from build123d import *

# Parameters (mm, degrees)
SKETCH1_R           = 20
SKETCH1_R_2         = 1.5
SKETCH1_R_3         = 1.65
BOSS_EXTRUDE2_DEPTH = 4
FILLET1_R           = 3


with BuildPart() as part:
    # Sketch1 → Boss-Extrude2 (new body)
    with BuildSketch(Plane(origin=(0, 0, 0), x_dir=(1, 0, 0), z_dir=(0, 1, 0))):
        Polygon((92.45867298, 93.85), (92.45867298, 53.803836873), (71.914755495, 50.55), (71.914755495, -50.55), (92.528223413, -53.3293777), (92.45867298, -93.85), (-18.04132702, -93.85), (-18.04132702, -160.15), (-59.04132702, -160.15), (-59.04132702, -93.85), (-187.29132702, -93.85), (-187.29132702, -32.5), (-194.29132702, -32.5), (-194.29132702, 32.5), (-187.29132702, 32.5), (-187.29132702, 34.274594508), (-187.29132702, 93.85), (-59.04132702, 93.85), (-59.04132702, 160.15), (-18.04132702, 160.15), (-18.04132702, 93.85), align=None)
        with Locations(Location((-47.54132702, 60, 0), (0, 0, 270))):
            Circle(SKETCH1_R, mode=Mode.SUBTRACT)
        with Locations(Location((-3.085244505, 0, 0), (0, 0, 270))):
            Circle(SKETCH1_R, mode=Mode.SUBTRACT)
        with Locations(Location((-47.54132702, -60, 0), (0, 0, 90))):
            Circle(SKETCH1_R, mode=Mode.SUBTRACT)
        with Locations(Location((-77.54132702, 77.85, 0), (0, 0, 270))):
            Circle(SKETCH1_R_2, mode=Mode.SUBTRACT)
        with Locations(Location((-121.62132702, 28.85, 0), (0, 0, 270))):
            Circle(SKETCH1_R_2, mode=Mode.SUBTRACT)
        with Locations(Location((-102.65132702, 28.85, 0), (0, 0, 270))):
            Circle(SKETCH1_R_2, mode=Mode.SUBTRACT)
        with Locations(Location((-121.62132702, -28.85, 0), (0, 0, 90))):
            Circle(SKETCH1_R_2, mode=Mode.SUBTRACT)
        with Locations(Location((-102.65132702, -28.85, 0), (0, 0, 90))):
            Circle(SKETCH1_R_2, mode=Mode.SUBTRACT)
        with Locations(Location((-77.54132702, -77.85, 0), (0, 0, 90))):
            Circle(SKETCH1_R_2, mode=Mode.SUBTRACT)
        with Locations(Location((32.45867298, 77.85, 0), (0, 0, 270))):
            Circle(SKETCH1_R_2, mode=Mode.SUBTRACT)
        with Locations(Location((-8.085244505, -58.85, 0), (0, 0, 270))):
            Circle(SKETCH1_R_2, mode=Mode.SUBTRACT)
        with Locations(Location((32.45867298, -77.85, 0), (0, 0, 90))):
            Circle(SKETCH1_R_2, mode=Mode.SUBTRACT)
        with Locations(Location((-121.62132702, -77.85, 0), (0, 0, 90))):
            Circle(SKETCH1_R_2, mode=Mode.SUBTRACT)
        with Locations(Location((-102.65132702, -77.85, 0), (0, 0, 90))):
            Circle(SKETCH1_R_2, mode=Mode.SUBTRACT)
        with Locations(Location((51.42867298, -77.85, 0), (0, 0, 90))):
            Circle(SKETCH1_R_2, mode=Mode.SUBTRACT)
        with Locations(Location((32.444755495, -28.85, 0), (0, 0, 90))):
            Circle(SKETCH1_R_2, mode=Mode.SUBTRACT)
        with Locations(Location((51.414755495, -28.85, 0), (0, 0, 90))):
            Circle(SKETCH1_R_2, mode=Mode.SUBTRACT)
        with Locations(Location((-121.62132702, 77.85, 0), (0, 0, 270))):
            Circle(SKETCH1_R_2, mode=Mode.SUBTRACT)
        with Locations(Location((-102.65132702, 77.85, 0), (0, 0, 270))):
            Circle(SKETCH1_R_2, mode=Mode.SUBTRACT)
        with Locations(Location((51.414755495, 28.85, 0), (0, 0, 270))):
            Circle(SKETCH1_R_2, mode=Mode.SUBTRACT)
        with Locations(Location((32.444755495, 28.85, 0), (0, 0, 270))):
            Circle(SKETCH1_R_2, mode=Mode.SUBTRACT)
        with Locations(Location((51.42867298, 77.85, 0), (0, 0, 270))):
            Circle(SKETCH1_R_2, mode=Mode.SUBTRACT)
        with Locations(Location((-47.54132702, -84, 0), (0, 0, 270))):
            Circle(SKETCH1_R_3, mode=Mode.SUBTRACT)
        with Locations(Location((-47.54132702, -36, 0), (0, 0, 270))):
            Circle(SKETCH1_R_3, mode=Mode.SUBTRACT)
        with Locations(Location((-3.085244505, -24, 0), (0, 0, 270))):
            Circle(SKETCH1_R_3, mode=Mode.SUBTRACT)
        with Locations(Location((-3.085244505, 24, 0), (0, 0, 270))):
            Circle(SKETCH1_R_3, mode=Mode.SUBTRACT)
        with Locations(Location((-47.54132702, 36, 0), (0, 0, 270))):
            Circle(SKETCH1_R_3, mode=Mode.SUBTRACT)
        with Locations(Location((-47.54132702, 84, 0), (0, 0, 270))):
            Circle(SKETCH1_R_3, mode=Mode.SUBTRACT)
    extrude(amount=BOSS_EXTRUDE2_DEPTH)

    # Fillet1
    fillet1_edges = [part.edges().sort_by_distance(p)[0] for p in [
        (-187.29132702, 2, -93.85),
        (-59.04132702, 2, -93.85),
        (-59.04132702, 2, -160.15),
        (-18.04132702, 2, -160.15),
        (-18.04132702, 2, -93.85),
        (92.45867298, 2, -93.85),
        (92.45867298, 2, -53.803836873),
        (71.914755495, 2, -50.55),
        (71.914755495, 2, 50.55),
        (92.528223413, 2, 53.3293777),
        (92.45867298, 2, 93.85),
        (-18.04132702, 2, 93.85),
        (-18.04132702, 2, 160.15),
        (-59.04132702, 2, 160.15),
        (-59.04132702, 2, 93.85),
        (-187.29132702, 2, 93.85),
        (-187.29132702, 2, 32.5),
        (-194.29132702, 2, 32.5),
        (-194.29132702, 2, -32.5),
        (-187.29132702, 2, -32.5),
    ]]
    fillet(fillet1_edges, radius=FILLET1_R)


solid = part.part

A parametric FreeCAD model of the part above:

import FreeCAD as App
import Part
import Sketcher

V = App.Vector
Q = App.Units.Quantity


def edges_at(feature, points):
    """Names of the edges that pass closest to the given points."""
    edges = feature.Shape.Edges
    near = lambda p: min(range(len(edges)), key=lambda i: edges[i].distToShape(Part.Vertex(*p))[0])
    return sorted({f"Edge{near(p) + 1}" for p in points})

doc = App.newDocument("Part")
params = doc.addObject("Spreadsheet::Sheet", "Params")
for row, (alias, value) in enumerate([
    ("sketch1_diameter", "3 mm"),
    ("sketch1_diameter2", "40 mm"),
    ("sketch1_diameter3", "3.3 mm"),
    ("sketch1_width", "41 mm"),
    ("sketch1_width2", "7 mm"),
    ("pad1_length", "4 mm"),
    ("fillet_radius", "3 mm"),
], start=1):
    params.set(f"A{row}", alias)
    params.set(f"B{row}", "=" + value)
    params.setAlias(f"B{row}", alias)

body = doc.addObject("PartDesign::Body", "Body")

# Sketch on XZ plane
sketch1 = body.newObject("Sketcher::SketchObject", "Sketch")
sketch1.AttachmentSupport = (doc.getObject("XZ_Plane"), [""])
sketch1.MapMode = "FlatFace"
sketch1.addGeometry([
    Part.LineSegment(V(92.458673, -53.803837, 0), V(92.458673, -93.85, 0)),  # 0
    Part.LineSegment(V(92.458673, -93.85, 0), V(-18.041327, -93.85, 0)),  # 1
    Part.LineSegment(V(-18.041327, -93.85, 0), V(-18.041327, -160.15, 0)),  # 2
    Part.LineSegment(V(-18.041327, -160.15, 0), V(-59.041327, -160.15, 0)),  # 3
    Part.LineSegment(V(-59.041327, -160.15, 0), V(-59.041327, -93.85, 0)),  # 4
    Part.LineSegment(V(-59.041327, -93.85, 0), V(-187.291327, -93.85, 0)),  # 5
    Part.LineSegment(V(-187.291327, -93.85, 0), V(-187.291327, -32.5, 0)),  # 6
    Part.LineSegment(V(-187.291327, -32.5, 0), V(-194.291327, -32.5, 0)),  # 7
    Part.LineSegment(V(-194.291327, -32.5, 0), V(-194.291327, 32.5, 0)),  # 8
    Part.LineSegment(V(-194.291327, 32.5, 0), V(-187.291327, 32.5, 0)),  # 9
    Part.LineSegment(V(-187.291327, 32.5, 0), V(-187.291327, 93.85, 0)),  # 10
    Part.LineSegment(V(-187.291327, 93.85, 0), V(-59.041327, 93.85, 0)),  # 11
    Part.LineSegment(V(-59.041327, 93.85, 0), V(-59.041327, 160.15, 0)),  # 12
    Part.LineSegment(V(-59.041327, 160.15, 0), V(-18.041327, 160.15, 0)),  # 13
    Part.LineSegment(V(-18.041327, 160.15, 0), V(-18.041327, 93.85, 0)),  # 14
    Part.LineSegment(V(-18.041327, 93.85, 0), V(92.458673, 93.85, 0)),  # 15
    Part.LineSegment(V(92.458673, 93.85, 0), V(92.528223, 53.329378, 0)),  # 16
    Part.LineSegment(V(92.528223, 53.329378, 0), V(71.914755, 50.55, 0)),  # 17
    Part.LineSegment(V(71.914755, 50.55, 0), V(71.914755, -50.55, 0)),  # 18
    Part.LineSegment(V(71.914755, -50.55, 0), V(92.458673, -53.803837, 0)),  # 19
    Part.Circle(V(51.428673, 77.85, 0), V(0, 0, 1), 1.5),  # 20
    Part.Circle(V(32.458673, 77.85, 0), V(0, 0, 1), 1.5),  # 21
    Part.Circle(V(-8.085245, 58.85, 0), V(0, 0, 1), 1.5),  # 22
    Part.Circle(V(51.414755, 28.85, 0), V(0, 0, 1), 1.5),  # 23
    Part.Circle(V(32.444755, 28.85, 0), V(0, 0, 1), 1.5),  # 24
    Part.Circle(V(-3.085245, 24, 0), V(0, 0, 1), 1.65),  # 25
    Part.Circle(V(-47.541327, 84, 0), V(0, 0, 1), 1.65),  # 26
    Part.Circle(V(-77.541327, 77.85, 0), V(0, 0, 1), 1.5),  # 27
    Part.Circle(V(-47.541327, 60, 0), V(0, 0, 1), 20),  # 28
    Part.Circle(V(-102.651327, 77.85, 0), V(0, 0, 1), 1.5),  # 29
    Part.Circle(V(-121.621327, 77.85, 0), V(0, 0, 1), 1.5),  # 30
    Part.Circle(V(-47.541327, 36, 0), V(0, 0, 1), 1.65),  # 31
    Part.Circle(V(-102.651327, 28.85, 0), V(0, 0, 1), 1.5),  # 32
    Part.Circle(V(-121.621327, 28.85, 0), V(0, 0, 1), 1.5),  # 33
    Part.Circle(V(51.414755, -28.85, 0), V(0, 0, 1), 1.5),  # 34
    Part.Circle(V(32.444755, -28.85, 0), V(0, 0, 1), 1.5),  # 35
    Part.Circle(V(-3.085245, 0, 0), V(0, 0, 1), 20),  # 36
    Part.Circle(V(-3.085245, -24, 0), V(0, 0, 1), 1.65),  # 37
    Part.Circle(V(51.428673, -77.85, 0), V(0, 0, 1), 1.5),  # 38
    Part.Circle(V(32.458673, -77.85, 0), V(0, 0, 1), 1.5),  # 39
    Part.Circle(V(-47.541327, -36, 0), V(0, 0, 1), 1.65),  # 40
    Part.Circle(V(-102.651327, -28.85, 0), V(0, 0, 1), 1.5),  # 41
    Part.Circle(V(-121.621327, -28.85, 0), V(0, 0, 1), 1.5),  # 42
    Part.Circle(V(-47.541327, -60, 0), V(0, 0, 1), 20),  # 43
    Part.Circle(V(-47.541327, -84, 0), V(0, 0, 1), 1.65),  # 44
    Part.Circle(V(-77.541327, -77.85, 0), V(0, 0, 1), 1.5),  # 45
    Part.Circle(V(-102.651327, -77.85, 0), V(0, 0, 1), 1.5),  # 46
    Part.Circle(V(-121.621327, -77.85, 0), V(0, 0, 1), 1.5),  # 47
], False)
sketch1.addConstraint([
    Sketcher.Constraint("Coincident", 0, 2, 1, 1),
    Sketcher.Constraint("Coincident", 1, 2, 2, 1),
    Sketcher.Constraint("Coincident", 2, 2, 3, 1),
    Sketcher.Constraint("Coincident", 3, 2, 4, 1),
    Sketcher.Constraint("Coincident", 4, 2, 5, 1),
    Sketcher.Constraint("Coincident", 5, 2, 6, 1),
    Sketcher.Constraint("Coincident", 6, 2, 7, 1),
    Sketcher.Constraint("Coincident", 7, 2, 8, 1),
    Sketcher.Constraint("Coincident", 8, 2, 9, 1),
    Sketcher.Constraint("Coincident", 9, 2, 10, 1),
    Sketcher.Constraint("Coincident", 10, 2, 11, 1),
    Sketcher.Constraint("Coincident", 11, 2, 12, 1),
    Sketcher.Constraint("Coincident", 12, 2, 13, 1),
    Sketcher.Constraint("Coincident", 13, 2, 14, 1),
    Sketcher.Constraint("Coincident", 14, 2, 15, 1),
    Sketcher.Constraint("Coincident", 15, 2, 16, 1),
    Sketcher.Constraint("Coincident", 16, 2, 17, 1),
    Sketcher.Constraint("Coincident", 17, 2, 18, 1),
    Sketcher.Constraint("Coincident", 18, 2, 19, 1),
    Sketcher.Constraint("Coincident", 19, 2, 0, 1),
    Sketcher.Constraint("Vertical", 0),
    Sketcher.Constraint("Horizontal", 1),
    Sketcher.Constraint("Vertical", 2),
    Sketcher.Constraint("Horizontal", 3),
    Sketcher.Constraint("Vertical", 4),
    Sketcher.Constraint("Horizontal", 5),
    Sketcher.Constraint("Vertical", 6),
    Sketcher.Constraint("Horizontal", 7),
    Sketcher.Constraint("Vertical", 8),
    Sketcher.Constraint("Horizontal", 9),
    Sketcher.Constraint("Vertical", 10),
    Sketcher.Constraint("Horizontal", 11),
    Sketcher.Constraint("Vertical", 12),
    Sketcher.Constraint("Horizontal", 13),
    Sketcher.Constraint("Vertical", 14),
    Sketcher.Constraint("Horizontal", 15),
    Sketcher.Constraint("Vertical", 18),
    Sketcher.Constraint("Equal", 20, 21),
    Sketcher.Constraint("Equal", 21, 22),
    Sketcher.Constraint("Equal", 22, 23),
    Sketcher.Constraint("Equal", 23, 24),
    Sketcher.Constraint("Equal", 25, 26),
    Sketcher.Constraint("Equal", 24, 27),
    Sketcher.Constraint("Equal", 27, 29),
    Sketcher.Constraint("Equal", 29, 30),
    Sketcher.Constraint("Equal", 26, 31),
    Sketcher.Constraint("Equal", 30, 32),
    Sketcher.Constraint("Equal", 32, 33),
    Sketcher.Constraint("Equal", 33, 34),
    Sketcher.Constraint("Equal", 34, 35),
    Sketcher.Constraint("Equal", 28, 36),
    Sketcher.Constraint("Equal", 31, 37),
    Sketcher.Constraint("Equal", 35, 38),
    Sketcher.Constraint("Equal", 38, 39),
    Sketcher.Constraint("Equal", 37, 40),
    Sketcher.Constraint("Equal", 39, 41),
    Sketcher.Constraint("Equal", 41, 42),
    Sketcher.Constraint("Equal", 36, 43),
    Sketcher.Constraint("Equal", 40, 44),
    Sketcher.Constraint("Equal", 42, 45),
    Sketcher.Constraint("Equal", 45, 46),
    Sketcher.Constraint("Equal", 46, 47),
    Sketcher.Constraint("Symmetric", 23, 3, 34, 3, -1),
    Sketcher.Constraint("Symmetric", 24, 3, 35, 3, -1),
    Sketcher.Constraint("Symmetric", 25, 3, 37, 3, -1),
    Sketcher.Constraint("Symmetric", 20, 3, 38, 3, -1),
    Sketcher.Constraint("Symmetric", 21, 3, 39, 3, -1),
    Sketcher.Constraint("Symmetric", 31, 3, 40, 3, -1),
    Sketcher.Constraint("Symmetric", 32, 3, 41, 3, -1),
    Sketcher.Constraint("Symmetric", 33, 3, 42, 3, -1),
    Sketcher.Constraint("Symmetric", 28, 3, 43, 3, -1),
    Sketcher.Constraint("Symmetric", 26, 3, 44, 3, -1),
    Sketcher.Constraint("Symmetric", 27, 3, 45, 3, -1),
    Sketcher.Constraint("Symmetric", 29, 3, 46, 3, -1),
    Sketcher.Constraint("Symmetric", 30, 3, 47, 3, -1),
    Sketcher.Constraint("Symmetric", 6, 2, 9, 2, -1),
    Sketcher.Constraint("Symmetric", 4, 2, 11, 2, -1),
    Sketcher.Constraint("Symmetric", 2, 2, 13, 2, -1),
    Sketcher.Constraint("Symmetric", 0, 2, 15, 2, -1),
    Sketcher.Constraint("PointOnObject", 36, 3, -1),
    Sketcher.Constraint("Horizontal", 20, 3, 21, 3),
    Sketcher.Constraint("Horizontal", 23, 3, 24, 3),
    Sketcher.Constraint("Horizontal", 21, 3, 27, 3),
    Sketcher.Constraint("Horizontal", 27, 3, 29, 3),
    Sketcher.Constraint("Horizontal", 29, 3, 30, 3),
    Sketcher.Constraint("Horizontal", 24, 3, 32, 3),
    Sketcher.Constraint("Horizontal", 32, 3, 33, 3),
    Sketcher.Constraint("Horizontal", 1, 2, 4, 2),
    Sketcher.Constraint("Vertical", 26, 3, 28, 3),
    Sketcher.Constraint("Vertical", 28, 3, 31, 3),
    Sketcher.Constraint("Vertical", 29, 3, 32, 3),
    Sketcher.Constraint("Vertical", 30, 3, 33, 3),
    Sketcher.Constraint("Vertical", 25, 3, 36, 3),
    Sketcher.Constraint("Equal", 17, 19),
    Sketcher.Constraint("Diameter", 20, Q("3 mm")),
    Sketcher.Constraint("Diameter", 28, Q("40 mm")),
    Sketcher.Constraint("Diameter", 25, Q("3.3 mm")),
    Sketcher.Constraint("DistanceX", 3, 2, 3, 1, Q("41 mm")),
    Sketcher.Constraint("DistanceX", 7, 2, 7, 1, Q("7 mm")),
    Sketcher.Constraint("DistanceY", 8, 1, 8, 2, Q("65 mm")),
    Sketcher.Constraint("Angle", 19, Q("-9 deg")),
    Sketcher.Constraint("DistanceX", 1, 2, 1, 1, Q("110.5 mm")),
    Sketcher.Constraint("DistanceY", 2, 2, 2, 1, Q("66.3 mm")),
    Sketcher.Constraint("DistanceY", 18, 2, 18, 1, Q("101.1 mm")),
    Sketcher.Constraint("DistanceY", -1, 1, 25, 3, Q("24 mm")),
    Sketcher.Constraint("DistanceY", -1, 1, 26, 3, Q("84 mm")),
    Sketcher.Constraint("DistanceY", -1, 1, 28, 3, Q("60 mm")),
    Sketcher.Constraint("DistanceY", -1, 1, 31, 3, Q("36 mm")),
    Sketcher.Constraint("DistanceY", 22, 3, 21, 3, Q("19 mm")),
    Sketcher.Constraint("DistanceY", 23, 3, 20, 3, Q("49 mm")),
    Sketcher.Constraint("DistanceX", 22, 3, 25, 3, Q("5 mm")),
    Sketcher.Constraint("DistanceX", 26, 3, 21, 3, Q("80 mm")),
    Sketcher.Constraint("DistanceX", 27, 3, 26, 3, Q("30 mm")),
    Sketcher.Constraint("DistanceY", 0, 2, 38, 3, Q("16 mm")),
    Sketcher.Constraint("DistanceX", 39, 3, 0, 2, Q("60 mm")),
    Sketcher.Constraint("Distance", 17, Q("20.8 mm")),
    Sketcher.Constraint("DistanceX", 5, 2, 5, 1, Q("128.25 mm")),
    Sketcher.Constraint("DistanceY", 6, 1, 6, 2, Q("61.35 mm")),
    Sketcher.Constraint("DistanceX", 22, 3, 23, 3, Q("59.5 mm")),
    Sketcher.Constraint("DistanceX", 23, 3, 17, 2, Q("20.5 mm")),
    Sketcher.Constraint("DistanceY", 23, 3, 17, 2, Q("21.7 mm")),
    Sketcher.Constraint("DistanceX", 21, 3, 20, 3, Q("18.97 mm")),
    Sketcher.Constraint("DistanceX", 24, 3, 23, 3, Q("18.97 mm")),
    Sketcher.Constraint("DistanceX", 29, 3, 27, 3, Q("25.11 mm")),
    Sketcher.Constraint("DistanceX", 30, 3, 29, 3, Q("18.97 mm")),
    Sketcher.Constraint("Distance", 16, Q("40.520682 mm")),
    Sketcher.Constraint("DistanceX", -1, 1, 20, 3, Q("51.428673 mm")),
])
sketch1.setExpression("Constraints[94]", "Params.sketch1_diameter")
sketch1.setExpression("Constraints[95]", "Params.sketch1_diameter2")
sketch1.setExpression("Constraints[96]", "Params.sketch1_diameter3")
sketch1.setExpression("Constraints[97]", "Params.sketch1_width")
sketch1.setExpression("Constraints[98]", "Params.sketch1_width2")
pad1 = body.newObject("PartDesign::Pad", "Pad")
pad1.Profile = sketch1
pad1.setExpression("Length", "Params.pad1_length")
pad1.Reversed = True
doc.recompute()

fillet = body.newObject("PartDesign::Fillet", "Fillet")
fillet.Base = (pad1, edges_at(pad1, [
    (-187.291, 2, -93.85),
    (-59.041, 2, -93.85),
    (-59.041, 2, -160.15),
    (-18.041, 2, -160.15),
    (-18.041, 2, -93.85),
    (92.459, 2, -93.85),
    (92.459, 2, -53.804),
    (71.915, 2, -50.55),
    (71.915, 2, 50.55),
    (92.528, 2, 53.329),
    (92.459, 2, 93.85),
    (-18.041, 2, 93.85),
    (-18.041, 2, 160.15),
    (-59.041, 2, 160.15),
    (-59.041, 2, 93.85),
    (-187.291, 2, 93.85),
    (-187.291, 2, 32.5),
    (-194.291, 2, 32.5),
    (-194.291, 2, -32.5),
    (-187.291, 2, -32.5),
]))
fillet.setExpression("Radius", "Params.fillet_radius")

doc.recompute()
